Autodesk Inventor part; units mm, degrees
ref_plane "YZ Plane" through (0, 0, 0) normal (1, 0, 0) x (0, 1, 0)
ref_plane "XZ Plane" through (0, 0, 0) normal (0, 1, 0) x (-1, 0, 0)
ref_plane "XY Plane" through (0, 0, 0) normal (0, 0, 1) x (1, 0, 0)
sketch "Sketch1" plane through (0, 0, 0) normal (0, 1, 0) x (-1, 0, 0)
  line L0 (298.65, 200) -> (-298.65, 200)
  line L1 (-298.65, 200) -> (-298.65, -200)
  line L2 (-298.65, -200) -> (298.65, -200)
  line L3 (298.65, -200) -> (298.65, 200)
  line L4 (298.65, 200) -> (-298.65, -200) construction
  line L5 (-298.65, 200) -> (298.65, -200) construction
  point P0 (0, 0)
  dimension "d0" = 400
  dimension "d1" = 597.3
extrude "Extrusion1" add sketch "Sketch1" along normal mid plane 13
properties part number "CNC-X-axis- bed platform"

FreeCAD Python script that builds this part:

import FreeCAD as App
import Part
import Sketcher
from FreeCAD import Vector


def add_polygon(sketch, points):
    """Adds a closed chain of lines whose ends are joined by coincident constraints."""
    first, n = sketch.GeometryCount, len(points)
    for a, b in zip(points, points[1:] + points[:1]):
        sketch.addGeometry(Part.LineSegment(App.Vector(*a, 0), App.Vector(*b, 0)), False)
    for i in range(n):
        sketch.addConstraint(Sketcher.Constraint("Coincident", first + i, 2, first + (i + 1) % n, 1))

doc = App.newDocument("Part")
body = doc.addObject("PartDesign::Body", "Body")

# Sketch on XZ plane
sketch1 = body.newObject("Sketcher::SketchObject", "Sketch")
sketch1.AttachmentSupport = (doc.getObject("XZ_Plane"), [""])
sketch1.MapMode = "FlatFace"
add_polygon(sketch1, [(-299, -200), (-299, 200), (299, 200), (299, -200)])  # lines 0-3
sketch1.addConstraint([
    Sketcher.Constraint("Vertical", 0),
    Sketcher.Constraint("Horizontal", 1),
    Sketcher.Constraint("Vertical", 2),
    Sketcher.Constraint("Horizontal", 3),
    Sketcher.Constraint("Symmetric", 0, 2, 2, 2, -1, 1),
    Sketcher.Constraint("DistanceY", 0, 1, 0, 2, 400.0),
    Sketcher.Constraint("DistanceX", 1, 1, 1, 2, 597.3),
])
pad1 = body.newObject("PartDesign::Pad", "Pad")
pad1.Profile = sketch1
pad1.Length = 13
pad1.Midplane = True

doc.recompute()
